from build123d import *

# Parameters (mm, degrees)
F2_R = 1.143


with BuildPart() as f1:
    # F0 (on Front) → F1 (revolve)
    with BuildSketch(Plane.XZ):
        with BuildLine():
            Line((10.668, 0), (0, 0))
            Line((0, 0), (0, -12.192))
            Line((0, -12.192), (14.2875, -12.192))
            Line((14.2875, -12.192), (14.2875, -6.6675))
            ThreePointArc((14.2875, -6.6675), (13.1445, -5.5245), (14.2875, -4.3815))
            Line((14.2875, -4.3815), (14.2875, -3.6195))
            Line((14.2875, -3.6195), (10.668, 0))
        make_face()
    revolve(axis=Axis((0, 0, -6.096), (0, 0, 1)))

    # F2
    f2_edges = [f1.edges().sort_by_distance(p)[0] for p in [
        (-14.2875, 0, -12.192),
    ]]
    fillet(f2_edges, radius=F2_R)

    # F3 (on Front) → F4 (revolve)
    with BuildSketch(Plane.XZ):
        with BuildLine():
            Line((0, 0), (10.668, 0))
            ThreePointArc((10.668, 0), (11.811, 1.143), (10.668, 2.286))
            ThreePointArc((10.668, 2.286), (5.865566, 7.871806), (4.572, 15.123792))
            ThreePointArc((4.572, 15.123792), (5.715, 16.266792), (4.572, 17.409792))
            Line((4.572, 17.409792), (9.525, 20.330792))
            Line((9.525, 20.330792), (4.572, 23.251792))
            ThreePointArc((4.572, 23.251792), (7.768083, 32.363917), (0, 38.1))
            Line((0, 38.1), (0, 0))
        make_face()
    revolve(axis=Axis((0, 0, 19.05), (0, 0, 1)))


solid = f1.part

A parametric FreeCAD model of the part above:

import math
import FreeCAD as App
import Part
import Sketcher
from FreeCAD import Vector
Q = App.Units.Quantity


def edges_at(feature, points):
    """Names of the edges that pass closest to the given points."""
    edges = feature.Shape.Edges
    near = lambda p: min(range(len(edges)), key=lambda i: edges[i].distToShape(Part.Vertex(*p))[0])
    return sorted({f"Edge{near(p) + 1}" for p in points})

doc = App.newDocument("Part")
body = doc.addObject("PartDesign::Body", "Body")

# Sketch on XZ plane
sketch1 = body.newObject("Sketcher::SketchObject", "Sketch")
sketch1.AttachmentSupport = (doc.getObject("XZ_Plane"), [""])
sketch1.MapMode = "FlatFace"
sketch1.addGeometry(Part.LineSegment(Vector(10.668, 0, 0), Vector(0, 0, 0)), False)
sketch1.addGeometry(Part.LineSegment(Vector(0, 0, 0), Vector(0, -12.192, 0)), False)
sketch1.addGeometry(Part.LineSegment(Vector(0, -12.192, 0), Vector(14.2875, -12.192, 0)), False)
sketch1.addGeometry(Part.LineSegment(Vector(14.2875, -12.192, 0), Vector(14.2875, -6.6675, 0)), False)
sketch1.addGeometry(Part.ArcOfCircle(Part.Circle(Vector(14.2875, -5.5245, 0), Vector(0, 0, 1), 1.143), math.radians(90), math.radians(270)), False)
sketch1.addGeometry(Part.LineSegment(Vector(14.2875, -4.3815, 0), Vector(14.2875, -3.6195, 0)), False)
sketch1.addGeometry(Part.LineSegment(Vector(14.2875, -3.6195, 0), Vector(10.668, 0, 0)), False)
sketch1.addConstraint(Sketcher.Constraint("Coincident", 0, 2, 1, 1))
sketch1.addConstraint(Sketcher.Constraint("Coincident", 1, 2, 2, 1))
sketch1.addConstraint(Sketcher.Constraint("Coincident", 2, 2, 3, 1))
sketch1.addConstraint(Sketcher.Constraint("Coincident", 3, 2, 4, 2))
sketch1.addConstraint(Sketcher.Constraint("Coincident", 4, 1, 5, 1))
sketch1.addConstraint(Sketcher.Constraint("Coincident", 5, 2, 6, 1))
sketch1.addConstraint(Sketcher.Constraint("Coincident", 6, 2, 0, 1))
sketch1.addConstraint(Sketcher.Constraint("Horizontal", 0))
sketch1.addConstraint(Sketcher.Constraint("Vertical", 1))
sketch1.addConstraint(Sketcher.Constraint("Horizontal", 2))
sketch1.addConstraint(Sketcher.Constraint("Vertical", 3))
sketch1.addConstraint(Sketcher.Constraint("Vertical", 5))
sketch1.addConstraint(Sketcher.Constraint("Coincident", 0, 2, -1, 1))
sketch1.addConstraint(Sketcher.Constraint("Vertical", 4, 3, 2, 2))
sketch1.addConstraint(Sketcher.Constraint("Vertical", 3, 2, 4, 1))
sketch1.addConstraint(Sketcher.Constraint("Angle", 6, Q("135 deg")))
sketch1.addConstraint(Sketcher.Constraint("Radius", 4, Q("0.045 in")))
sketch1.addConstraint(Sketcher.Constraint("DistanceX", 0, 2, 0, 1, Q("0.42 in")))
sketch1.addConstraint(Sketcher.Constraint("DistanceY", 1, 2, 1, 1, Q("0.48 in")))
sketch1.addConstraint(Sketcher.Constraint("DistanceY", 5, 1, 5, 2, Q("0.03 in")))
sketch1.addConstraint(Sketcher.Constraint("DistanceX", 2, 1, 2, 2, Q("0.5625 in")))
revolution = body.newObject("PartDesign::Revolution", "Revolution")
revolution.Profile = sketch1
revolution.ReferenceAxis = (sketch1, ["V_Axis"])
revolution.Angle = 360
doc.recompute()

fillet = body.newObject("PartDesign::Fillet", "Fillet")
fillet.Base = (revolution, edges_at(revolution, [(-14.287, 0, -12.192)]))
fillet.Radius = Q("0.045 in")

# Sketch on XZ plane
sketch2 = body.newObject("Sketcher::SketchObject", "Sketch001")
sketch2.AttachmentSupport = (doc.getObject("XZ_Plane"), [""])
sketch2.MapMode = "FlatFace"
sketch2.addGeometry(Part.LineSegment(Vector(0, 0, 0), Vector(10.668, 0, 0)), False)
sketch2.addGeometry(Part.ArcOfCircle(Part.Circle(Vector(10.668, 1.143, 0), Vector(0, 0, 1), 1.143), math.radians(-90), math.radians(90)), False)
sketch2.addGeometry(Part.ArcOfCircle(Part.Circle(Vector(18.485094, 13.864164, 0), Vector(0, 0, 1), 13.969999), math.radians(174.826807), math.radians(235.974417)), False)
sketch2.addGeometry(Part.ArcOfCircle(Part.Circle(Vector(4.572, 16.266792, 0), Vector(0, 0, 1), 1.143), math.radians(-90), math.radians(90)), False)
sketch2.addGeometry(Part.LineSegment(Vector(4.572, 17.409792, 0), Vector(9.525, 20.330792, 0)), False)
sketch2.addGeometry(Part.LineSegment(Vector(9.525, 20.330792, 0), Vector(4.572, 23.251792, 0)), False)
sketch2.addGeometry(Part.ArcOfCircle(Part.Circle(Vector(0, 29.972, 0), Vector(0, 0, 1), 8.128), math.radians(-55.771132), math.radians(89.999999)), False)
sketch2.addGeometry(Part.LineSegment(Vector(0, 38.1, 0), Vector(0, 0, 0)), False)
sketch2.addConstraint(Sketcher.Constraint("Tangent", 0, 2, 1, 1))
sketch2.addConstraint(Sketcher.Constraint("Coincident", 1, 2, 2, 2))
sketch2.addConstraint(Sketcher.Constraint("Coincident", 2, 1, 3, 1))
sketch2.addConstraint(Sketcher.Constraint("Coincident", 3, 2, 4, 1))
sketch2.addConstraint(Sketcher.Constraint("Coincident", 4, 2, 5, 1))
sketch2.addConstraint(Sketcher.Constraint("Coincident", 5, 2, 6, 1))
sketch2.addConstraint(Sketcher.Constraint("Coincident", 6, 2, 7, 1))
sketch2.addConstraint(Sketcher.Constraint("Coincident", 7, 2, 0, 1))
sketch2.addConstraint(Sketcher.Constraint("Horizontal", 0))
sketch2.addConstraint(Sketcher.Constraint("Vertical", 7))
sketch2.addConstraint(Sketcher.Constraint("Coincident", 7, 2, -1, 1))
sketch2.addConstraint(Sketcher.Constraint("Equal", 1, 3))
sketch2.addConstraint(Sketcher.Constraint("PointOnObject", 6, 3, -2))
sketch2.addConstraint(Sketcher.Constraint("Vertical", 0, 2, 1, 2))
sketch2.addConstraint(Sketcher.Constraint("Vertical", 3, 3, 2, 1))
sketch2.addConstraint(Sketcher.Constraint("Vertical", 2, 1, 3, 2))
sketch2.addConstraint(Sketcher.Constraint("Vertical", 3, 2, 5, 2))
sketch2.addConstraint(Sketcher.Constraint("Equal", 4, 5))
sketch2.addConstraint(Sketcher.Constraint("Radius", 2, Q("0.5499999 in")))
sketch2.addConstraint(Sketcher.Constraint("Radius", 6, Q("0.32 in")))
sketch2.addConstraint(Sketcher.Constraint("DistanceY", 7, 2, 7, 1, Q("1.5 in")))
sketch2.addConstraint(Sketcher.Constraint("Radius", 1, Q("0.045 in")))
sketch2.addConstraint(Sketcher.Constraint("DistanceX", 0, 1, 0, 2, Q("0.42 in")))
sketch2.addConstraint(Sketcher.Constraint("DistanceX", -1, 1, 3, 3, Q("0.18 in")))
sketch2.addConstraint(Sketcher.Constraint("DistanceY", 3, 3, 4, 2, Q("0.16 in")))
sketch2.addConstraint(Sketcher.Constraint("DistanceX", -1, 1, 4, 2, Q("0.375 in")))
revolution2 = body.newObject("PartDesign::Revolution", "Revolution001")
revolution2.Profile = sketch2
revolution2.ReferenceAxis = (sketch2, ["V_Axis"])
revolution2.Angle = 360

doc.recompute()
